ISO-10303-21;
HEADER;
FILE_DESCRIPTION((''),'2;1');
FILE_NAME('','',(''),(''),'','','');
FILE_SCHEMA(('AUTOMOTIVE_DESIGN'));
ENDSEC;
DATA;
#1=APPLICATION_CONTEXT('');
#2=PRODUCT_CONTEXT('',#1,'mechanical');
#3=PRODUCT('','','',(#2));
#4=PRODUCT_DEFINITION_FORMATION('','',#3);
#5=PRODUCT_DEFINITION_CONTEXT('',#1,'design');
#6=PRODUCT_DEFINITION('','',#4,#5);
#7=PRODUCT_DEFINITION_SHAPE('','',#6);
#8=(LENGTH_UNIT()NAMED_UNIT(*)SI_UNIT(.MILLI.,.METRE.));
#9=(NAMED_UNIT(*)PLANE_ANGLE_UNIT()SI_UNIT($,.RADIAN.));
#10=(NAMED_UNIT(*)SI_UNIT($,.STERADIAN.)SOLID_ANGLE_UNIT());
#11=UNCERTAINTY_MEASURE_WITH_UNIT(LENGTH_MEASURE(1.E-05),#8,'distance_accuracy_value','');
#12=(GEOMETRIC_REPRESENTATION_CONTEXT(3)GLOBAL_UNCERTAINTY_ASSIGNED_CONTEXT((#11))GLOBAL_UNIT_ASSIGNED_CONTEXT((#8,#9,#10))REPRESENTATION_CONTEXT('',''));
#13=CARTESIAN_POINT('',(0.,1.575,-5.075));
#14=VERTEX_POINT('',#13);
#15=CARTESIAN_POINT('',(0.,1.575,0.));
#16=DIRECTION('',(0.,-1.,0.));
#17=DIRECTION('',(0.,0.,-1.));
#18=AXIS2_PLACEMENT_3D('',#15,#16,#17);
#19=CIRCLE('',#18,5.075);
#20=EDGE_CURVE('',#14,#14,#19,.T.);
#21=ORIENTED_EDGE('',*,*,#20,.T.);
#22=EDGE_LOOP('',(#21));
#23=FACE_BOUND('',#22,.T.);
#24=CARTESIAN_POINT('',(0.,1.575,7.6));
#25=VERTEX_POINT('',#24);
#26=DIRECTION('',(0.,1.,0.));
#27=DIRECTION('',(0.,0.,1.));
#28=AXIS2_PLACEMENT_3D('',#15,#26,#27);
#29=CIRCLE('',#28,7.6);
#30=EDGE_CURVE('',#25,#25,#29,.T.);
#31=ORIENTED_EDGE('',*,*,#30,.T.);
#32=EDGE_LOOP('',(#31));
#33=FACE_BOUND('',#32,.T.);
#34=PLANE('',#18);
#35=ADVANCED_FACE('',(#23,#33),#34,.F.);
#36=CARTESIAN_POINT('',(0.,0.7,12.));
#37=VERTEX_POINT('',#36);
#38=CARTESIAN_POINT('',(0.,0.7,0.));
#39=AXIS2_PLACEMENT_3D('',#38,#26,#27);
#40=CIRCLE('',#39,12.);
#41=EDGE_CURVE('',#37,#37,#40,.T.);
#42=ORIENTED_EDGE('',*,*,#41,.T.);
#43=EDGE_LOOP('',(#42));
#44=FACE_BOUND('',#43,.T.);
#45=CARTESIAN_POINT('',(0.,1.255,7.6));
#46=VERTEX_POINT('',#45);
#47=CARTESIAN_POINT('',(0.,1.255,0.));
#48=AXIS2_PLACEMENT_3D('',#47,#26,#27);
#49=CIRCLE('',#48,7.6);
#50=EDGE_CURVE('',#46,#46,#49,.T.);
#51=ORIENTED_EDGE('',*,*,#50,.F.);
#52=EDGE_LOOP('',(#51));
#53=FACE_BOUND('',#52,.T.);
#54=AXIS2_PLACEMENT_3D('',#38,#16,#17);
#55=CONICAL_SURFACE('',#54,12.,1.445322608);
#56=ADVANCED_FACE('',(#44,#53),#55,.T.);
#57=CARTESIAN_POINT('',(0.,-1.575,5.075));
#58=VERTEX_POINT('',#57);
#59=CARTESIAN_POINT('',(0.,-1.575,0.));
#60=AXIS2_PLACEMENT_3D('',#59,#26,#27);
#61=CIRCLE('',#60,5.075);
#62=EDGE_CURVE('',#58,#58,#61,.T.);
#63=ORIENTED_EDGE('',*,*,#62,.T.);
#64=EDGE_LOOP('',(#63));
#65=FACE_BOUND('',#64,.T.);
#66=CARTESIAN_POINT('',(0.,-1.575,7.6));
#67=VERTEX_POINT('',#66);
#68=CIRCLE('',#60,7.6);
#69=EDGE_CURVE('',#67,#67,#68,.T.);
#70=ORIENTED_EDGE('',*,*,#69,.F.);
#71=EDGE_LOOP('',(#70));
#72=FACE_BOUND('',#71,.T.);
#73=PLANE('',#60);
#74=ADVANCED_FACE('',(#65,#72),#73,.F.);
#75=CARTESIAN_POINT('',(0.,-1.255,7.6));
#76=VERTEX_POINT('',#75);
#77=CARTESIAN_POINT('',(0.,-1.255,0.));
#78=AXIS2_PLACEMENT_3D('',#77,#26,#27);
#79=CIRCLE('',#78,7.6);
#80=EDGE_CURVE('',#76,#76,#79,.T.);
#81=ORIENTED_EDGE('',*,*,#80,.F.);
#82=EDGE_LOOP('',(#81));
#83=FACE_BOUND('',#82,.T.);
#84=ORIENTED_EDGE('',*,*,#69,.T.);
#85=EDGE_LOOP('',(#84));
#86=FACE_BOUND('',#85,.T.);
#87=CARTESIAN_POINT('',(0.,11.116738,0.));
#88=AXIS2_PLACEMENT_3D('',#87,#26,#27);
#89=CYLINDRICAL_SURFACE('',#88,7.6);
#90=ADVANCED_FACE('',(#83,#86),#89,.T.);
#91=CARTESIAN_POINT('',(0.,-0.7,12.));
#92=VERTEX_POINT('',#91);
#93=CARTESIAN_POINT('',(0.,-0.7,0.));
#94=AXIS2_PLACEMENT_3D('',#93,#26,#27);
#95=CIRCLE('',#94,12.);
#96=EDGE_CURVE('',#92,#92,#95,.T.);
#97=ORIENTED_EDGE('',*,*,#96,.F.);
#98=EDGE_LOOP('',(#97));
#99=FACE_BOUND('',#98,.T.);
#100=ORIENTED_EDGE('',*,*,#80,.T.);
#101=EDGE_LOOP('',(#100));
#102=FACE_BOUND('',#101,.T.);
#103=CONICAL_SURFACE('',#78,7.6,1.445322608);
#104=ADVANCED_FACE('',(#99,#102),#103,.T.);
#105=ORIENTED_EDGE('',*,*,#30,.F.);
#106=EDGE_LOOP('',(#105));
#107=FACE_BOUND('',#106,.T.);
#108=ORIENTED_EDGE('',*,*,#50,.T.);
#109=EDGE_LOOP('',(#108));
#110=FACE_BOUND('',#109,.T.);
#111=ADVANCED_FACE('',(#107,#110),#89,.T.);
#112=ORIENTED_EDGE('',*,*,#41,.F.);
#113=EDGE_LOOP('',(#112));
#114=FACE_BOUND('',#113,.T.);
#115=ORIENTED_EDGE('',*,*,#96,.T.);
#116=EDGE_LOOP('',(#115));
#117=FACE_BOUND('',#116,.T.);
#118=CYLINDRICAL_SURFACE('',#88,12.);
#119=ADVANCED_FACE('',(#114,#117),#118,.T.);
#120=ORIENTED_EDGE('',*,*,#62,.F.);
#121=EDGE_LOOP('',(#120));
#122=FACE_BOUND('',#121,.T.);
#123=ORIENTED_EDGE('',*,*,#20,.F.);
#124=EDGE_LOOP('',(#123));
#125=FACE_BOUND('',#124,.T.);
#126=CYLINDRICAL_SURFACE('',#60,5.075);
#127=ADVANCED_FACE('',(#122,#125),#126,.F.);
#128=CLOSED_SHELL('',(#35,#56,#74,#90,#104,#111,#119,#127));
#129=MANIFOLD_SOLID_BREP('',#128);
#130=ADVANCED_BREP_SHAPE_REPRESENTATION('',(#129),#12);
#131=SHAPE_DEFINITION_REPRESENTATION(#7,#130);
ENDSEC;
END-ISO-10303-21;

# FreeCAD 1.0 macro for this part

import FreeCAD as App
import Part
import Sketcher
from FreeCAD import Vector
Q = App.Units.Quantity

doc = App.newDocument("Part")
body = doc.addObject("PartDesign::Body", "Body")

# Sketch on XY plane
sketch1 = body.newObject("Sketcher::SketchObject", "Sketch")
sketch1.AttachmentSupport = (doc.getObject("XY_Plane"), [""])
sketch1.MapMode = "FlatFace"
sketch1.addGeometry(Part.LineSegment(Vector(7.6, 1.575, 0), Vector(0, 1.575, 0)), False)
sketch1.addGeometry(Part.LineSegment(Vector(0, 1.575, 0), Vector(0, -1.575, 0)), False)
sketch1.addGeometry(Part.LineSegment(Vector(0, -1.575, 0), Vector(7.6, -1.575, 0)), False)
sketch1.addGeometry(Part.LineSegment(Vector(7.6, -1.575, 0), Vector(7.6, -1.255, 0)), False)
sketch1.addGeometry(Part.LineSegment(Vector(7.6, -1.255, 0), Vector(12, -0.7, 0)), False)
sketch1.addGeometry(Part.LineSegment(Vector(12, -0.7, 0), Vector(12, 0.7, 0)), False)
sketch1.addGeometry(Part.LineSegment(Vector(12, 0.7, 0), Vector(7.6, 1.255, 0)), False)
sketch1.addGeometry(Part.LineSegment(Vector(7.6, 1.255, 0), Vector(7.6, 1.575, 0)), False)
sketch1.addConstraint(Sketcher.Constraint("Coincident", 0, 2, 1, 1))
sketch1.addConstraint(Sketcher.Constraint("Coincident", 1, 2, 2, 1))
sketch1.addConstraint(Sketcher.Constraint("Coincident", 2, 2, 3, 1))
sketch1.addConstraint(Sketcher.Constraint("Coincident", 3, 2, 4, 1))
sketch1.addConstraint(Sketcher.Constraint("Coincident", 4, 2, 5, 1))
sketch1.addConstraint(Sketcher.Constraint("Coincident", 5, 2, 6, 1))
sketch1.addConstraint(Sketcher.Constraint("Coincident", 6, 2, 7, 1))
sketch1.addConstraint(Sketcher.Constraint("Coincident", 7, 2, 0, 1))
sketch1.addConstraint(Sketcher.Constraint("Horizontal", 0))
sketch1.addConstraint(Sketcher.Constraint("Vertical", 1))
sketch1.addConstraint(Sketcher.Constraint("Horizontal", 2))
sketch1.addConstraint(Sketcher.Constraint("Vertical", 3))
sketch1.addConstraint(Sketcher.Constraint("Vertical", 5))
sketch1.addConstraint(Sketcher.Constraint("Vertical", 7))
sketch1.addConstraint(Sketcher.Constraint("Symmetric", 0, 2, 1, 2, -1, 1))
sketch1.addConstraint(Sketcher.Constraint("Symmetric", 3, 2, 6, 2, -1))
sketch1.addConstraint(Sketcher.Constraint("Equal", 4, 6))
sketch1.addConstraint(Sketcher.Constraint("DistanceX", 0, 2, 0, 1, Q("7.6 mm")))
sketch1.addConstraint(Sketcher.Constraint("DistanceY", 5, 1, 5, 2, Q("1.4 mm")))
sketch1.addConstraint(Sketcher.Constraint("DistanceX", -1, 1, 4, 2, Q("12 mm")))
sketch1.addConstraint(Sketcher.Constraint("DistanceY", 1, 2, 1, 1, Q("3.15 mm")))
sketch1.addConstraint(Sketcher.Constraint("DistanceY", 3, 1, 3, 2, Q("0.32 mm")))
revolution = body.newObject("PartDesign::Revolution", "Revolution")
revolution.Profile = sketch1
revolution.ReferenceAxis = (sketch1, ["V_Axis"])
revolution.Angle = 360

# Sketch on XZ plane
sketch2 = body.newObject("Sketcher::SketchObject", "Sketch001")
sketch2.AttachmentSupport = (doc.getObject("XZ_Plane"), [""])
sketch2.MapMode = "FlatFace"
sketch2.AttachmentOffset = App.Placement(Vector(0, 0, -1.575), App.Rotation())
sketch2.addGeometry(Part.Circle(Vector(0, 0, 0), Vector(0, 0, 1), 5.075), False)
sketch2.addConstraint(Sketcher.Constraint("Coincident", 0, 3, -1, 1))
sketch2.addConstraint(Sketcher.Constraint("Diameter", 0, Q("10.15 mm")))
pocket1 = body.newObject("PartDesign::Pocket", "Pocket")
pocket1.Profile = sketch2
pocket1.Type = "ThroughAll"
pocket1.Midplane = True

doc.recompute()
